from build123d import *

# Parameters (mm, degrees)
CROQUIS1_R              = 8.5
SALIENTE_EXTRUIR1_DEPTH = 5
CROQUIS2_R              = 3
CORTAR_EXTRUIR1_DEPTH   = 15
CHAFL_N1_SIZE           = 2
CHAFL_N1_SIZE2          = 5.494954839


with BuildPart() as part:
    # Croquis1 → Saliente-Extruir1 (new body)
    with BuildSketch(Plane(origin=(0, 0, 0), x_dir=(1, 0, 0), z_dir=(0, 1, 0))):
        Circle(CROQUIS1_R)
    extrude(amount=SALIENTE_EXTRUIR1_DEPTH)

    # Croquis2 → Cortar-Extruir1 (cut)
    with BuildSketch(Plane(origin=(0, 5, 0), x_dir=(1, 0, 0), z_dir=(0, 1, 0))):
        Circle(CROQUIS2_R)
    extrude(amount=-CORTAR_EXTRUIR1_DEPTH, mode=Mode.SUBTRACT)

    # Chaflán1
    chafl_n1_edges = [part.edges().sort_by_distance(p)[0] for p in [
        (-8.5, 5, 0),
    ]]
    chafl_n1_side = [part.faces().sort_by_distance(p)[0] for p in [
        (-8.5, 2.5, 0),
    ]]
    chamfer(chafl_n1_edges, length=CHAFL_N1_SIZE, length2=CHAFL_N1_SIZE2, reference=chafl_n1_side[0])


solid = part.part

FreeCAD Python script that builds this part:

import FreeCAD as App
import Part
import Sketcher
from FreeCAD import Vector


def edges_at(feature, points):
    """Names of the edges that pass closest to the given points."""
    edges = feature.Shape.Edges
    near = lambda p: min(range(len(edges)), key=lambda i: edges[i].distToShape(Part.Vertex(*p))[0])
    return sorted({f"Edge{near(p) + 1}" for p in points})

doc = App.newDocument("Part")
params = doc.addObject("Spreadsheet::Sheet", "Params")
for row, (alias, value) in enumerate([
    ("sketch1_diameter", "17 mm"),
    ("pad1_length", "5 mm"),
    ("sketch2_diameter", "6 mm"),
    ("pocket1_length", "15 mm"),
    ("chamfer_size", "2 mm"),
    ("chamfer_size2", "5.494955 mm"),
], start=1):
    params.set(f"A{row}", alias)
    params.set(f"B{row}", "=" + value)
    params.setAlias(f"B{row}", alias)

body = doc.addObject("PartDesign::Body", "Body")

sketch1 = body.newObject("Sketcher::SketchObject", "Sketch")
sketch1.AttachmentSupport = (doc.getObject("XZ_Plane"), [""])
sketch1.MapMode = "FlatFace"
sketch1.addGeometry(Part.Circle(Vector(0, 0, 0), Vector(0, 0, 1), 8.5), False)
sketch1.addConstraint([
    Sketcher.Constraint("Coincident", 0, 3, -1, 1),
    Sketcher.Constraint("Diameter", 0, 17.0),
])
sketch1.setExpression("Constraints[1]", "Params.sketch1_diameter")
pad1 = body.newObject("PartDesign::Pad", "Pad")
pad1.Profile = sketch1
pad1.setExpression("Length", "Params.pad1_length")
pad1.Reversed = True

sketch2 = body.newObject("Sketcher::SketchObject", "Sketch001")
sketch2.AttachmentSupport = (doc.getObject("XZ_Plane"), [""])
sketch2.MapMode = "FlatFace"
sketch2.AttachmentOffset = App.Placement(Vector(0, 0, -5), App.Rotation())
sketch2.addGeometry(Part.Circle(Vector(0, 0, 0), Vector(0, 0, 1), 3), False)
sketch2.addConstraint([
    Sketcher.Constraint("Coincident", 0, 3, -1, 1),
    Sketcher.Constraint("Diameter", 0, 6.0),
])
sketch2.setExpression("Constraints[1]", "Params.sketch2_diameter")
pocket1 = body.newObject("PartDesign::Pocket", "Pocket")
pocket1.Profile = sketch2
pocket1.setExpression("Length", "Params.pocket1_length")
pocket1.Reversed = True
doc.recompute()

chamfer = body.newObject("PartDesign::Chamfer", "Chamfer")
chamfer.Base = (pocket1, edges_at(pocket1, [(-8.5, 5, 0)]))
chamfer.ChamferType = "Two distances"
chamfer.setExpression("Size", "Params.chamfer_size")
chamfer.setExpression("Size2", "Params.chamfer_size2")

doc.recompute()
